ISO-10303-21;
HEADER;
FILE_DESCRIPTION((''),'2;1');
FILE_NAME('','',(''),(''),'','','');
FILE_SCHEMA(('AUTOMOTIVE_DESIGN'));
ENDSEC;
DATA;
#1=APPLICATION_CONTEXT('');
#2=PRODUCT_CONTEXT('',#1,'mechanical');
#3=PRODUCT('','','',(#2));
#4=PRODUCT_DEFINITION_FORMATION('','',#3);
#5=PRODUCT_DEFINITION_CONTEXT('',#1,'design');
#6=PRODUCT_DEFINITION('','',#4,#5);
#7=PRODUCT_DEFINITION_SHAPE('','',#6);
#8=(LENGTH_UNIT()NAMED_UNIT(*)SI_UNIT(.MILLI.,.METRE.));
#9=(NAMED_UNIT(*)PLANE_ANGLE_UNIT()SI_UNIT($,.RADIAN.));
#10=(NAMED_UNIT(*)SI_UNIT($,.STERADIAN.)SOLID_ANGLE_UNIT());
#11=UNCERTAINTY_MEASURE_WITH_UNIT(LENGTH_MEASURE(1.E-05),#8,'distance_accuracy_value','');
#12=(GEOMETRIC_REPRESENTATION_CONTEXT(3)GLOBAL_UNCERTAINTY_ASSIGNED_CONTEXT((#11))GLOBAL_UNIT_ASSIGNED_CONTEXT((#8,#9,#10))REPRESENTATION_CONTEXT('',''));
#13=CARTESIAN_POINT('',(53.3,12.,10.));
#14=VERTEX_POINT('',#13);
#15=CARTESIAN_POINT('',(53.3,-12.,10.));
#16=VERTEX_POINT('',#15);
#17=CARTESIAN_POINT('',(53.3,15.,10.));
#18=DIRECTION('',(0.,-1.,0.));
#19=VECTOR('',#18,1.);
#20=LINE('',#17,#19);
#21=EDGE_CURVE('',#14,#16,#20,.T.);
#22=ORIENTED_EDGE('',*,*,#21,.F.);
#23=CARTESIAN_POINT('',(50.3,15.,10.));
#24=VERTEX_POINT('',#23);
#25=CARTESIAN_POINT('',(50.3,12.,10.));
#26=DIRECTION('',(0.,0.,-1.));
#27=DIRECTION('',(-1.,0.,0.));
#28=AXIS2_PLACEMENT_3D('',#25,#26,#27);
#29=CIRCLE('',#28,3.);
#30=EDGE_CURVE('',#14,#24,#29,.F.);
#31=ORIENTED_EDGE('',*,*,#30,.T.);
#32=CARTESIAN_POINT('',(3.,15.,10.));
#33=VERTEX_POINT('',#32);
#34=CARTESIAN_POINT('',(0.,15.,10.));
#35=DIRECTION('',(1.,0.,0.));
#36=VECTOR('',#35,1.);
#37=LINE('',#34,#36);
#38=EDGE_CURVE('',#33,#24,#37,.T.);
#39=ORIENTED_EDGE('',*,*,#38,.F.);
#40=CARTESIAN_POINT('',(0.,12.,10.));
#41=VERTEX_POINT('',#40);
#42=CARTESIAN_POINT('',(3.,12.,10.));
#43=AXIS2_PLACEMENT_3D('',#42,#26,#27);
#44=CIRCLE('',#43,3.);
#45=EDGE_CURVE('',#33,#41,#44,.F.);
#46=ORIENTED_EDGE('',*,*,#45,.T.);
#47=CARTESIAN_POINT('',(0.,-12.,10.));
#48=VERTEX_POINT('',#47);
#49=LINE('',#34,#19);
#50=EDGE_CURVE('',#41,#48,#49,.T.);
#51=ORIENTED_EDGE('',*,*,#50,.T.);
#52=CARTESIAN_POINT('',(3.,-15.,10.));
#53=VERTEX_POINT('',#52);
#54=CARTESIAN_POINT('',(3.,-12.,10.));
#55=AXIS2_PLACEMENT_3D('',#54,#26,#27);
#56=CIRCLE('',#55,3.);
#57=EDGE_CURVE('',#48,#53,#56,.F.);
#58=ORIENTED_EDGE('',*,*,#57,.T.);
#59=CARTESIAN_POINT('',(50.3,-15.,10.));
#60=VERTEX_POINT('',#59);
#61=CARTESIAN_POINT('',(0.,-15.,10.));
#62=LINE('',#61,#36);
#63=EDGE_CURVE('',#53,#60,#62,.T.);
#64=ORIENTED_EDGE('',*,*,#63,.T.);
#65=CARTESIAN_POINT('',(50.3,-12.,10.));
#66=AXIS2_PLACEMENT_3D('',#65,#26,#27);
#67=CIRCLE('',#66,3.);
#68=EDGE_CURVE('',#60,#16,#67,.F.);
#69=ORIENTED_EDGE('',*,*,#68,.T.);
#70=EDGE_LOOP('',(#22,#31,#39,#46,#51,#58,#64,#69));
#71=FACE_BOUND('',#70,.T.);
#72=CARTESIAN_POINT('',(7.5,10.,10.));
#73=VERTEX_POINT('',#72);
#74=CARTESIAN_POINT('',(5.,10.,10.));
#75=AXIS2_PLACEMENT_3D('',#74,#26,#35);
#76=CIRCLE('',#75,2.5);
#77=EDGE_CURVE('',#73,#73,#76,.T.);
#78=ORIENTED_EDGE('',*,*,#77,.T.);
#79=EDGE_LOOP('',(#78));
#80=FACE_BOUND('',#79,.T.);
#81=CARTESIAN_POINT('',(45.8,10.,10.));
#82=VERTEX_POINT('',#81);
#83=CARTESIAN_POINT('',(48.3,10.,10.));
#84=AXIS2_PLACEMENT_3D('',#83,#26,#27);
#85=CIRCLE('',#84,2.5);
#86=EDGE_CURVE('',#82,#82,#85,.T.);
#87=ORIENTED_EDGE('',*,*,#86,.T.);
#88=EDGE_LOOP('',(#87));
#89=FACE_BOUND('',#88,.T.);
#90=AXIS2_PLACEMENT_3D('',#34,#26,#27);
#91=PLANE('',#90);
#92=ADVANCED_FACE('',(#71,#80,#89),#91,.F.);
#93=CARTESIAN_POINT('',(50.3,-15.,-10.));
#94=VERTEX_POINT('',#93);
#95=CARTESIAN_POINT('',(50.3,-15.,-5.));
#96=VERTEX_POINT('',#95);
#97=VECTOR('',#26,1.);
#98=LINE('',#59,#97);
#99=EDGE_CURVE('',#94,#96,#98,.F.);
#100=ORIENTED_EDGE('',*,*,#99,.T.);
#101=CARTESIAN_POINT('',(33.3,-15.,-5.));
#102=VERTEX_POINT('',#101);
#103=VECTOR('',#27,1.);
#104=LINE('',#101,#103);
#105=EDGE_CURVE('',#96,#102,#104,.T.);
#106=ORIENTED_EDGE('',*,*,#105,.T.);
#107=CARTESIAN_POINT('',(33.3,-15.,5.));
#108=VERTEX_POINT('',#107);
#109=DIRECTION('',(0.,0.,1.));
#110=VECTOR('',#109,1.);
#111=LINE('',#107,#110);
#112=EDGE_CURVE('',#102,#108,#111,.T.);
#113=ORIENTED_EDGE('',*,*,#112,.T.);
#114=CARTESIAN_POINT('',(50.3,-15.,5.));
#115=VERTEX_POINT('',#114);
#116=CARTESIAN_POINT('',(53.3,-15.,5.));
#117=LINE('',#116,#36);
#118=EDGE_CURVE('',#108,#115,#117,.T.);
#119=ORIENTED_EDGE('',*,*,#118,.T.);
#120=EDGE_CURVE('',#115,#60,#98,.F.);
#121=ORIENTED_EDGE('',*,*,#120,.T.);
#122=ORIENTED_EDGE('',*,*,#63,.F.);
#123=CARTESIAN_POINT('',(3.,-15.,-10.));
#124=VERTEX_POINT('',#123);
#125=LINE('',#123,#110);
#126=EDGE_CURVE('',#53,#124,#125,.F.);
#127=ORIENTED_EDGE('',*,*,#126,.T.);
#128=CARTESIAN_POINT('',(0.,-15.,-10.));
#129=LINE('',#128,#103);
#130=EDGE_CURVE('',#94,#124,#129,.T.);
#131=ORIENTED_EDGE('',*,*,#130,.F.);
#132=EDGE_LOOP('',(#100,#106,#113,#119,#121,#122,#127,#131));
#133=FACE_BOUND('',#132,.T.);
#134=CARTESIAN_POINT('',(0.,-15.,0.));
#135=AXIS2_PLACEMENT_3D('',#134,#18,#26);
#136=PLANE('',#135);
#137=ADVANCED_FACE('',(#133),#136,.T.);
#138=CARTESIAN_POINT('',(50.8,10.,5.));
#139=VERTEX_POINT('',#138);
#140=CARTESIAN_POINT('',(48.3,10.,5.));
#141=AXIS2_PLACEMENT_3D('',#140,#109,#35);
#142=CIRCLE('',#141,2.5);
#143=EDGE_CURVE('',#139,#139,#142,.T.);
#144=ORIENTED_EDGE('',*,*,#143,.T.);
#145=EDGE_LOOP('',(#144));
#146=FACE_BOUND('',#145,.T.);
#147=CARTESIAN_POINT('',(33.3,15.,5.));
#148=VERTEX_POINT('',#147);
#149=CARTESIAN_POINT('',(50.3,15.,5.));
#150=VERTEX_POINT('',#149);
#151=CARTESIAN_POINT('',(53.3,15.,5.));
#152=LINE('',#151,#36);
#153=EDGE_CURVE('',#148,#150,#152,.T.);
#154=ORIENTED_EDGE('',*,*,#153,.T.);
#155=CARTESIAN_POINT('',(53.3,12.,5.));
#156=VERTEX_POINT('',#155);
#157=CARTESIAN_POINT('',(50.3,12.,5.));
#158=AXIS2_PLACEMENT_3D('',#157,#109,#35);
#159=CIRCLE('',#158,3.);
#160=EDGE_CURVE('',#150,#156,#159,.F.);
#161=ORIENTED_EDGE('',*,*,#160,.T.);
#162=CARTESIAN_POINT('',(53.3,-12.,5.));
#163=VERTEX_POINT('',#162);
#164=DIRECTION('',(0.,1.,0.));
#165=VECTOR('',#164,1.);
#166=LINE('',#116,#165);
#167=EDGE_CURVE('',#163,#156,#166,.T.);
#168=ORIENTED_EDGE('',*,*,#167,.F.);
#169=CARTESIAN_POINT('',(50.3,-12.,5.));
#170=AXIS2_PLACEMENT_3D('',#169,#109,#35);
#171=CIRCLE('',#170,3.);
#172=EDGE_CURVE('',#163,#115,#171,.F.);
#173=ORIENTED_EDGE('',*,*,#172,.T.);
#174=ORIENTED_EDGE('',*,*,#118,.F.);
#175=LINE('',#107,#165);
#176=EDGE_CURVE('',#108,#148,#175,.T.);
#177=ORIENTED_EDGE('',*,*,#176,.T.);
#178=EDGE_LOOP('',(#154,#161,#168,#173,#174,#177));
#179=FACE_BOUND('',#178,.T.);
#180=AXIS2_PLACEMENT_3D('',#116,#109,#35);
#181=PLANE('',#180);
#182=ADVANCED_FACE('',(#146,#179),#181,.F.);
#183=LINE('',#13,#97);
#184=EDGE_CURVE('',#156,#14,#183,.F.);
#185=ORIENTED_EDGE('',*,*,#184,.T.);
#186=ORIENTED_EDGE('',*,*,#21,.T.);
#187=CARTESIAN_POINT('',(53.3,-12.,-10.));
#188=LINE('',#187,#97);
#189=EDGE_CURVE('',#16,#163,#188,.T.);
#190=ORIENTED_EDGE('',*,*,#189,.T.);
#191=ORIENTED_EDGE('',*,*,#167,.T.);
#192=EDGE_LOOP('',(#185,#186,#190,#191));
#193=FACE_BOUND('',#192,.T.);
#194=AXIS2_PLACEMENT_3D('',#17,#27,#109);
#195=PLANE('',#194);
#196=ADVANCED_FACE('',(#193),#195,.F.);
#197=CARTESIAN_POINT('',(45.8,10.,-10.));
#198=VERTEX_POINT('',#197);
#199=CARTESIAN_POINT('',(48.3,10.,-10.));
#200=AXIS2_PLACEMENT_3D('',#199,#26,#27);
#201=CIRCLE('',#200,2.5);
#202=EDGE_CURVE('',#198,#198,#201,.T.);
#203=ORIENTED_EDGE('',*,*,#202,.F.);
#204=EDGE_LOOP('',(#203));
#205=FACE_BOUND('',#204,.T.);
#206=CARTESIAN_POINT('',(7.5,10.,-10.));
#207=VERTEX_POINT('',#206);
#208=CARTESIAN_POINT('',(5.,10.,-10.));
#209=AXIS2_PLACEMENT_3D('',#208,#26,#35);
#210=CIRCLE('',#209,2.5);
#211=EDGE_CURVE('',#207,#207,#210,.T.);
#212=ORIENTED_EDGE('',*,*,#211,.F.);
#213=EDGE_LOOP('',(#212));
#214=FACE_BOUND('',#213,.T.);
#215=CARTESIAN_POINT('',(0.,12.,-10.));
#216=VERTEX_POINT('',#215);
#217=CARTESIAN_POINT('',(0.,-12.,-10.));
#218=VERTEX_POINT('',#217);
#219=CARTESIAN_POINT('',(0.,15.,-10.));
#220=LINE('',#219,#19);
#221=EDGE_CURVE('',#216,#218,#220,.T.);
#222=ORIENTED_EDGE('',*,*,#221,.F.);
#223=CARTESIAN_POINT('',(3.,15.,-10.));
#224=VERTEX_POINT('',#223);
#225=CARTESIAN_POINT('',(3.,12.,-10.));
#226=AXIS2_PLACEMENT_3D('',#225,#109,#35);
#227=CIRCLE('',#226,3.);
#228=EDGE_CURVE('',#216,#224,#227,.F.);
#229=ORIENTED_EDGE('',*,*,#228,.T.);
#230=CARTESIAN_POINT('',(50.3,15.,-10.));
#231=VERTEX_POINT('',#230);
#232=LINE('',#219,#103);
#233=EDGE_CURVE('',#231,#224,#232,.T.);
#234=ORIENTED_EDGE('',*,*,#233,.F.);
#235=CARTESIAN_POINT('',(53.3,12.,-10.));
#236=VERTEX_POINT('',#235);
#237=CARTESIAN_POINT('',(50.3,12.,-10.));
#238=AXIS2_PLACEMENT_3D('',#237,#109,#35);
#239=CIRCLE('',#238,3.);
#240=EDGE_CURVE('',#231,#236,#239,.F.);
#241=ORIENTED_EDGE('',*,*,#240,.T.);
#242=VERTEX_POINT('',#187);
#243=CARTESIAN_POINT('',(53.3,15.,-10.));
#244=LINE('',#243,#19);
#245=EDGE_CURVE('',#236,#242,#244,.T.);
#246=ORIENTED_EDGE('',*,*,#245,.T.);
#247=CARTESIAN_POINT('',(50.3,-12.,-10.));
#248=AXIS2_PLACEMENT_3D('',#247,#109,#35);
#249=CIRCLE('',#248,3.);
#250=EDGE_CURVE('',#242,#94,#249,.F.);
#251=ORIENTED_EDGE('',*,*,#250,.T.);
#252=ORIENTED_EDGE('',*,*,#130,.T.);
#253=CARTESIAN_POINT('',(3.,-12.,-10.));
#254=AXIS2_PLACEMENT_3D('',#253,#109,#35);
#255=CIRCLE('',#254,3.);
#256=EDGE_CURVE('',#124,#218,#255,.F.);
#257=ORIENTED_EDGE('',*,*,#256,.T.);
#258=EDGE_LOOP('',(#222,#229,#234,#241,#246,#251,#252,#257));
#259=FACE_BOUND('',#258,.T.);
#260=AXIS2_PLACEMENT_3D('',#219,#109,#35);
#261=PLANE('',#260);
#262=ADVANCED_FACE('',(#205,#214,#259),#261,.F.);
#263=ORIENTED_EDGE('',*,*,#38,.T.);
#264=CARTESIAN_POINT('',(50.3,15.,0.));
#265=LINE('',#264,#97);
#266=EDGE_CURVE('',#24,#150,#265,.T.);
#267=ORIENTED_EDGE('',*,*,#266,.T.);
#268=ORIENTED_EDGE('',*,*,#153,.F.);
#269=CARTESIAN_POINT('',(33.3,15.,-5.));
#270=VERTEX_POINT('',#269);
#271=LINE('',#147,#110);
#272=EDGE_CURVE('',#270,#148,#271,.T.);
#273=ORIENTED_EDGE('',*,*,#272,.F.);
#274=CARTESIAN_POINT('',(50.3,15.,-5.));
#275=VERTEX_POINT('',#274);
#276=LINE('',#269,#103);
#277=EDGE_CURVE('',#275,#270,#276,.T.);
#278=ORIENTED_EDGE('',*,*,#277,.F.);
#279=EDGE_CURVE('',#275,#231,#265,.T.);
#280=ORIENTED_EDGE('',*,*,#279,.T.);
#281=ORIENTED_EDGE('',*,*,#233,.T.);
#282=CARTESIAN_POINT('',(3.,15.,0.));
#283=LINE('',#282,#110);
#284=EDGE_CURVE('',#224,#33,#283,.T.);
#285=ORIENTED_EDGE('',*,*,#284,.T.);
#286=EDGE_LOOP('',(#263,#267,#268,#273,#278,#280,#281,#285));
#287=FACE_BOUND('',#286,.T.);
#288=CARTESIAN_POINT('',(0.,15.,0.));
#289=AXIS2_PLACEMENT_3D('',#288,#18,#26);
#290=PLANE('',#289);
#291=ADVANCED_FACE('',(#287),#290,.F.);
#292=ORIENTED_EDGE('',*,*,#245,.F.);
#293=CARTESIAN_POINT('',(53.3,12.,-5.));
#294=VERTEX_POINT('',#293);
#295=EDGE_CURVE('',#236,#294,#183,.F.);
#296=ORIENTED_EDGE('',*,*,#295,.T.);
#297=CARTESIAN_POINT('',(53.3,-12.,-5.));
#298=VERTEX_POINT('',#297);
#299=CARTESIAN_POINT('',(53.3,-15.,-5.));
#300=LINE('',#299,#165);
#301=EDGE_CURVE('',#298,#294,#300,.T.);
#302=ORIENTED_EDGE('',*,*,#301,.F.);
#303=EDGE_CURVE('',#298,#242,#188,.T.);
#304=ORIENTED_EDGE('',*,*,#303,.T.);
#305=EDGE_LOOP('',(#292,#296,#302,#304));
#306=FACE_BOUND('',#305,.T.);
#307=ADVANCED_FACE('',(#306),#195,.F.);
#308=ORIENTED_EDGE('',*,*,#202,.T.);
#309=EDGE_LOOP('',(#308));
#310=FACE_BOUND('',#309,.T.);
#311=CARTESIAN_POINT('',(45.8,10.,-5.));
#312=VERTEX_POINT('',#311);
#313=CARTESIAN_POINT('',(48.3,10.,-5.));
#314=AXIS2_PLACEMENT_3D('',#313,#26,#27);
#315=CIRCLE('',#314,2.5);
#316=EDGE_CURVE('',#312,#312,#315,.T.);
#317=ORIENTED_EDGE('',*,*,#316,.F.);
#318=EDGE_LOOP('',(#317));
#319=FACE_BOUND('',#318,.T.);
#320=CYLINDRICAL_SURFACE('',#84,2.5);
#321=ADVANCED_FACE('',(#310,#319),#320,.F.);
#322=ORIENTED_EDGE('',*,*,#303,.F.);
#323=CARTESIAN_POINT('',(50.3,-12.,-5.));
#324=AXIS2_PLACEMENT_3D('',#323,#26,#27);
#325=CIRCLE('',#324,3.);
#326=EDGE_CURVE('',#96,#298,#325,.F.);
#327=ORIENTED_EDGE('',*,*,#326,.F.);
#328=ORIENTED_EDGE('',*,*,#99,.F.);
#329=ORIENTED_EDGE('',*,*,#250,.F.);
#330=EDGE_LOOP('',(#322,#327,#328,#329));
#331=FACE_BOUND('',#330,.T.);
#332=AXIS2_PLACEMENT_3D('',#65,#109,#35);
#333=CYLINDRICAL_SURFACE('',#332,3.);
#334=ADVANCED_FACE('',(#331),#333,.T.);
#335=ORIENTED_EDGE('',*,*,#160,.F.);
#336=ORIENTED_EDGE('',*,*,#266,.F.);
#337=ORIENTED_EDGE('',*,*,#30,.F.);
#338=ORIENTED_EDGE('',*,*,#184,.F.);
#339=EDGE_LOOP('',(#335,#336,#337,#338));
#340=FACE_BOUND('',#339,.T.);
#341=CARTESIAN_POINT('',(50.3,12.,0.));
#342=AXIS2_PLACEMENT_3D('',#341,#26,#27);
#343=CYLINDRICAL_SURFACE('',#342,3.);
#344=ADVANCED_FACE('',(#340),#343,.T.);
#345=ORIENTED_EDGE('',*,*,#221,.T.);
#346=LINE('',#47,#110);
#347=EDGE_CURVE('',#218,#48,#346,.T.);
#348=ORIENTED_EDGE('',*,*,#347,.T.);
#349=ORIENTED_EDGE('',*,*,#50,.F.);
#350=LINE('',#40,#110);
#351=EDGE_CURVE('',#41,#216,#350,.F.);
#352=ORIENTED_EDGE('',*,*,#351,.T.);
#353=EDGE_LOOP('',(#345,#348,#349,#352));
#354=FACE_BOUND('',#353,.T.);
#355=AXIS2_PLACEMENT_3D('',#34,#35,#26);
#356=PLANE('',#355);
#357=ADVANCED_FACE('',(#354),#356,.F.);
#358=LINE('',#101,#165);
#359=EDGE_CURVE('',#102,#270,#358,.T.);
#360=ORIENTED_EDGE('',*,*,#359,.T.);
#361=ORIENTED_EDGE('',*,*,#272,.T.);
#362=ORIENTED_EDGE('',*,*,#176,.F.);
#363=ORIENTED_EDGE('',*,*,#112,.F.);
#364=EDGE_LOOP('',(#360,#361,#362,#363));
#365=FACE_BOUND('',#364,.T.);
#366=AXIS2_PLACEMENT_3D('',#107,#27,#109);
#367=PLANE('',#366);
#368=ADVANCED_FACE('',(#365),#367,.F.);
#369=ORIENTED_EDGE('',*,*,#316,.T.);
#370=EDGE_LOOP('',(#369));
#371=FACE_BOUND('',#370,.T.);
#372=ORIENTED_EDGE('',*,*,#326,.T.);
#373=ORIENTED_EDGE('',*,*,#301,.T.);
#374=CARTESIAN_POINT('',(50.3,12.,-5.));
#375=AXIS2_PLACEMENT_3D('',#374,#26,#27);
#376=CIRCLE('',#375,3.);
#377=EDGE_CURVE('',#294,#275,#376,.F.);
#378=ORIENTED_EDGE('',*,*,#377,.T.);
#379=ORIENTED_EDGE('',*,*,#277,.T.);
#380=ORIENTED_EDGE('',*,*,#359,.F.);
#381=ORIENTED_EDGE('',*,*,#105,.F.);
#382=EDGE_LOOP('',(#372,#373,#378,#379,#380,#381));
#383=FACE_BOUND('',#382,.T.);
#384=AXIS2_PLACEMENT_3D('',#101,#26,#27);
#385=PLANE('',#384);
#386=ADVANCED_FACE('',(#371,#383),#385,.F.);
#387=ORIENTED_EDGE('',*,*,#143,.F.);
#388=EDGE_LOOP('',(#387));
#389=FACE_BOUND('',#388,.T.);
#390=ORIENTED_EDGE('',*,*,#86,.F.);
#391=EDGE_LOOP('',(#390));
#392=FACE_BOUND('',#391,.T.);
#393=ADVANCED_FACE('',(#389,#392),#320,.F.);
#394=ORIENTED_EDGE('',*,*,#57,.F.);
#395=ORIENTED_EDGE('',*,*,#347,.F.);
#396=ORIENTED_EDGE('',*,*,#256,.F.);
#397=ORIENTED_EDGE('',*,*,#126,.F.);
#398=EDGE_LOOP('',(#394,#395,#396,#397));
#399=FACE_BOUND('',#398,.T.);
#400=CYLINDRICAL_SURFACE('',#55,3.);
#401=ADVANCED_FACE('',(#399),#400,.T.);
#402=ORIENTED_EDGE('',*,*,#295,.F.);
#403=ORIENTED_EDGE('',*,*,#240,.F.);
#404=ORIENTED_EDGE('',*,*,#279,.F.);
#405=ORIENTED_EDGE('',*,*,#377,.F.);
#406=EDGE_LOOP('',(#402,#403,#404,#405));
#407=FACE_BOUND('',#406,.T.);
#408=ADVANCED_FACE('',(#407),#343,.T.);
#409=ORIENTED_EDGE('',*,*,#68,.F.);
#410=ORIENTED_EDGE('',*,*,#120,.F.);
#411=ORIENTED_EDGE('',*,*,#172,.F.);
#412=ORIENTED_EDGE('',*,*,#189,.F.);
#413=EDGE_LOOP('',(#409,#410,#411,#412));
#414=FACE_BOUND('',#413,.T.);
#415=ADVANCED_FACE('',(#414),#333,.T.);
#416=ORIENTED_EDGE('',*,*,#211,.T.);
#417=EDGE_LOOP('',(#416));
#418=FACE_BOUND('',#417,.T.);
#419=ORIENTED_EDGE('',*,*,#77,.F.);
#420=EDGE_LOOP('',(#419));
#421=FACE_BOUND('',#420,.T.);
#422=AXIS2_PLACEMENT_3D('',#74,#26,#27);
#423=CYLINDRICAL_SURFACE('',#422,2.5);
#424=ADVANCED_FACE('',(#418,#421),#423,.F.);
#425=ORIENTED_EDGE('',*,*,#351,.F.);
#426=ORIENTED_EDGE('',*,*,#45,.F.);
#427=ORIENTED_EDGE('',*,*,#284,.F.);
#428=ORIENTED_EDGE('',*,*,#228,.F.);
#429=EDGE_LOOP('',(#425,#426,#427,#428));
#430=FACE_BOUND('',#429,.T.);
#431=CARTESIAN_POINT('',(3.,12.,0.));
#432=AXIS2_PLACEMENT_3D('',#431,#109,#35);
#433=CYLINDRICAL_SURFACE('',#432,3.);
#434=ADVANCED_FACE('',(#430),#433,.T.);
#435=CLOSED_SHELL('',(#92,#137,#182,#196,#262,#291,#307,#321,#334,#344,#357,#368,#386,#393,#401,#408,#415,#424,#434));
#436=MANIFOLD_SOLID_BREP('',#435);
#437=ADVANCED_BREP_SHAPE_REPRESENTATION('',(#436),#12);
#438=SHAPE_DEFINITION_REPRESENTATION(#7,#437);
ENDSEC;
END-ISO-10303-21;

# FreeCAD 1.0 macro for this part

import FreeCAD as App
import Part
import Sketcher

V = App.Vector
Q = App.Units.Quantity


def edges_at(feature, points):
    """Names of the edges that pass closest to the given points."""
    edges = feature.Shape.Edges
    near = lambda p: min(range(len(edges)), key=lambda i: edges[i].distToShape(Part.Vertex(*p))[0])
    return sorted({f"Edge{near(p) + 1}" for p in points})


def add_polygon(sketch, points):
    """Adds a closed chain of lines whose ends are joined by coincident constraints."""
    first, n = sketch.GeometryCount, len(points)
    for a, b in zip(points, points[1:] + points[:1]):
        sketch.addGeometry(Part.LineSegment(App.Vector(*a, 0), App.Vector(*b, 0)), False)
    for i in range(n):
        sketch.addConstraint(Sketcher.Constraint("Coincident", first + i, 2, first + (i + 1) % n, 1))

doc = App.newDocument("Part")
body = doc.addObject("PartDesign::Body", "Body")

sketch1 = body.newObject("Sketcher::SketchObject", "Sketch")
sketch1.AttachmentSupport = (doc.getObject("XZ_Plane"), [""])
sketch1.MapMode = "FlatFace"
add_polygon(sketch1, [(0, -10), (0, 10), (53, 10), (53, -10)])
sketch1.addConstraint(Sketcher.Constraint("Vertical", 0))
sketch1.addConstraint(Sketcher.Constraint("Horizontal", 1))
sketch1.addConstraint(Sketcher.Constraint("Vertical", 2))
sketch1.addConstraint(Sketcher.Constraint("Horizontal", 3))
sketch1.addConstraint(Sketcher.Constraint("Symmetric", 0, 2, 3, 2, -1, 1))
sketch1.addConstraint(Sketcher.Constraint("DistanceY", 0, 1, 0, 2, Q("20 mm")))
sketch1.addConstraint(Sketcher.Constraint("DistanceX", 1, 1, 1, 2, Q("53.3 mm")))
pad1 = body.newObject("PartDesign::Pad", "Pad")
pad1.Profile = sketch1
pad1.Length = 30
pad1.Midplane = True
doc.recompute()

fillet = body.newObject("PartDesign::Fillet", "Fillet")
fillet.Base = (pad1, edges_at(pad1, [
    (53.3, 15, 0),
    (0, 15, 0),
    (53.3, -15, 0),
    (0, -15, 0),
]))
fillet.Radius = 3

sketch2 = body.newObject("Sketcher::SketchObject", "Sketch001")
sketch2.AttachmentSupport = (doc.getObject("XZ_Plane"), [""])
sketch2.MapMode = "FlatFace"
sketch2.AttachmentOffset = App.Placement(V(0, 0, -15), App.Rotation())
add_polygon(sketch2, [(33, -5), (33, 5), (53, 5), (53, -5)])
sketch2.addConstraint(Sketcher.Constraint("Vertical", 0))
sketch2.addConstraint(Sketcher.Constraint("Horizontal", 1))
sketch2.addConstraint(Sketcher.Constraint("Vertical", 2))
sketch2.addConstraint(Sketcher.Constraint("Horizontal", 3))
sketch2.addConstraint(Sketcher.Constraint("DistanceX", 1, 1, 1, 2, Q("20 mm")))
sketch2.addConstraint(Sketcher.Constraint("DistanceY", 0, 1, 0, 2, Q("10 mm")))
sketch2.addConstraint(Sketcher.Constraint("DistanceY", -1, 1, 0, 2, Q("5 mm")))
sketch2.addConstraint(Sketcher.Constraint("DistanceX", -1, 1, 0, 2, Q("33.3 mm")))
pocket1 = body.newObject("PartDesign::Pocket", "Pocket")
pocket1.Profile = sketch2
pocket1.Type = "ThroughAll"
pocket1.Reversed = True

sketch3 = body.newObject("Sketcher::SketchObject", "Sketch002")
sketch3.AttachmentSupport = (doc.getObject("XY_Plane"), [""])
sketch3.MapMode = "FlatFace"
sketch3.AttachmentOffset = App.Placement(V(0, 0, -10), App.Rotation())
sketch3.addGeometry(Part.Circle(V(48.3, 10, 0), V(0, 0, 1), 2.5), False)
sketch3.addGeometry(Part.Circle(V(5, 10, 0), V(0, 0, 1), 2.5), False)
sketch3.addConstraint(Sketcher.Constraint("Equal", 0, 1))
sketch3.addConstraint(Sketcher.Constraint("Horizontal", 0, 3, 1, 3))
sketch3.addConstraint(Sketcher.Constraint("Diameter", 0, Q("5 mm")))
sketch3.addConstraint(Sketcher.Constraint("DistanceY", -1, 1, 0, 3, Q("10 mm")))
sketch3.addConstraint(Sketcher.Constraint("DistanceX", -1, 1, 1, 3, Q("5 mm")))
sketch3.addConstraint(Sketcher.Constraint("DistanceX", -1, 1, 0, 3, Q("48.3 mm")))
pocket2 = body.newObject("PartDesign::Pocket", "Pocket001")
pocket2.Profile = sketch3
pocket2.Type = "ThroughAll"
pocket2.Reversed = True

doc.recompute()
